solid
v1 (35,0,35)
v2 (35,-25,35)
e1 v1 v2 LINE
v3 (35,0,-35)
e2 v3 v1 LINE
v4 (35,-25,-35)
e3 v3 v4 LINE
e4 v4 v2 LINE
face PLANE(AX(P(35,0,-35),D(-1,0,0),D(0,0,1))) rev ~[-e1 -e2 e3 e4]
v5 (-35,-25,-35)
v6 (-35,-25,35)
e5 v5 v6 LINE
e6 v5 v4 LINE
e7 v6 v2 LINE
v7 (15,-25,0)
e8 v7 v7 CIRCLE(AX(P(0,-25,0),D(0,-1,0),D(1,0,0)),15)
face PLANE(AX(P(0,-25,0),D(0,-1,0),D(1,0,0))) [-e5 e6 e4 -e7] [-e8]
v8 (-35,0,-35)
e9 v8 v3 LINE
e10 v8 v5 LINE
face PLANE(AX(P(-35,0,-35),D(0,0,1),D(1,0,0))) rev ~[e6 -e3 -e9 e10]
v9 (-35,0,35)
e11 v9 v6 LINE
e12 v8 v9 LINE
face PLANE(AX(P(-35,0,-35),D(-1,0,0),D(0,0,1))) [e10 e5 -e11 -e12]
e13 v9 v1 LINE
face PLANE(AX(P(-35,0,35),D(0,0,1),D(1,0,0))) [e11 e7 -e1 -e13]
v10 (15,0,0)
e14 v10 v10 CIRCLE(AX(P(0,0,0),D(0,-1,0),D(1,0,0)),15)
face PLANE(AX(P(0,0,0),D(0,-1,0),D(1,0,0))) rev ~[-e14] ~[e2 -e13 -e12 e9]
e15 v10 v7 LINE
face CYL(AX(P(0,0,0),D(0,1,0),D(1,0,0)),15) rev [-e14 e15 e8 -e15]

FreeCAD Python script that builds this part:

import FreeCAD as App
import Part
import Sketcher

V = App.Vector

doc = App.newDocument("Part")
body = doc.addObject("PartDesign::Body", "Body")

sketch1 = body.newObject("Sketcher::SketchObject", "Sketch")
sketch1.AttachmentSupport = (doc.getObject("XZ_Plane"), [""])
sketch1.MapMode = "FlatFace"
sketch1.addGeometry(Part.LineSegment(V(-35, 35, 0), V(-35, -35, 0)), False)
sketch1.addGeometry(Part.LineSegment(V(-35, -35, 0), V(35, -35, 0)), False)
sketch1.addGeometry(Part.LineSegment(V(35, -35, 0), V(35, 35, 0)), False)
sketch1.addGeometry(Part.LineSegment(V(35, 35, 0), V(-35, 35, 0)), False)
sketch1.addConstraint(Sketcher.Constraint("Coincident", 0, 2, 1, 1))
sketch1.addConstraint(Sketcher.Constraint("Coincident", 1, 2, 2, 1))
sketch1.addConstraint(Sketcher.Constraint("Coincident", 2, 2, 3, 1))
sketch1.addConstraint(Sketcher.Constraint("Coincident", 3, 2, 0, 1))
sketch1.addConstraint(Sketcher.Constraint("Vertical", 0))
sketch1.addConstraint(Sketcher.Constraint("Horizontal", 1))
sketch1.addConstraint(Sketcher.Constraint("Vertical", 2))
sketch1.addConstraint(Sketcher.Constraint("Horizontal", 3))
sketch1.addConstraint(Sketcher.Constraint("Symmetric", 0, 2, 2, 2, -1, 1))
sketch1.addConstraint(Sketcher.Constraint("Equal", 3, 0))
sketch1.addConstraint(Sketcher.Constraint("DistanceX", 1, 1, 1, 2, 70.0))
pad1 = body.newObject("PartDesign::Pad", "Pad")
pad1.Profile = sketch1
pad1.Length = 25

sketch2 = body.newObject("Sketcher::SketchObject", "Sketch001")
sketch2.AttachmentSupport = (doc.getObject("XZ_Plane"), [""])
sketch2.MapMode = "FlatFace"
sketch2.addGeometry(Part.Circle(V(0, 0, 0), V(0, 0, 1), 15), False)
sketch2.addConstraint(Sketcher.Constraint("Coincident", 0, 3, -1, 1))
sketch2.addConstraint(Sketcher.Constraint("Diameter", 0, 30.0))
pocket1 = body.newObject("PartDesign::Pocket", "Pocket")
pocket1.Profile = sketch2
pocket1.Length = 25
pocket1.Reversed = True

doc.recompute()
